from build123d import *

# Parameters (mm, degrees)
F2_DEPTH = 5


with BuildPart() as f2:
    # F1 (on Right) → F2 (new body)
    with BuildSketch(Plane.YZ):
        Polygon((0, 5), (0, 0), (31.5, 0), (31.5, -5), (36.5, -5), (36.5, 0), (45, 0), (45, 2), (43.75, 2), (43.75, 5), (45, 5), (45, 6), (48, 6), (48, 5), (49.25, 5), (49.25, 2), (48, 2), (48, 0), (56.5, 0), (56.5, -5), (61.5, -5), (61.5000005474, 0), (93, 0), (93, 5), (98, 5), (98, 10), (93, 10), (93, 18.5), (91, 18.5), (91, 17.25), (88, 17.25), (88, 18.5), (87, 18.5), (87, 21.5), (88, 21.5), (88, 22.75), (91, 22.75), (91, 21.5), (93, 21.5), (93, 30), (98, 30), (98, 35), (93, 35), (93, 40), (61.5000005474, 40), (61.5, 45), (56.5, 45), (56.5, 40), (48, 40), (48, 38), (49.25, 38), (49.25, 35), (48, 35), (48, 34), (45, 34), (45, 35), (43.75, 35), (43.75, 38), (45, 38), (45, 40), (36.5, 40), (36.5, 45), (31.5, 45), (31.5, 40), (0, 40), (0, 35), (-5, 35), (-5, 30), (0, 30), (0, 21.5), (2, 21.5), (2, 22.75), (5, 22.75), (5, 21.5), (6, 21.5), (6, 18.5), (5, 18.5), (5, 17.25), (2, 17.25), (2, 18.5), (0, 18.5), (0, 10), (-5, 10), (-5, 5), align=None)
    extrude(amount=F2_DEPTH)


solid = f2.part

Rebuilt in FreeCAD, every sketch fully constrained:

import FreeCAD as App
import Part
import Sketcher

doc = App.newDocument("Part")
body = doc.addObject("PartDesign::Body", "Body")

sketch1 = body.newObject("Sketcher::SketchObject", "Sketch")
sketch1.AttachmentSupport = (doc.getObject("YZ_Plane"), [""])
sketch1.MapMode = "FlatFace"
sketch1.addGeometry(Part.LineSegment(App.Vector(0, 5, 0), App.Vector(0, 0, 0)), False)
sketch1.addGeometry(Part.LineSegment(App.Vector(0, 0, 0), App.Vector(31.5, 0, 0)), False)
sketch1.addGeometry(Part.LineSegment(App.Vector(31.5, 0, 0), App.Vector(31.5, -5, 0)), False)
sketch1.addGeometry(Part.LineSegment(App.Vector(31.5, -5, 0), App.Vector(36.5, -5, 0)), False)
sketch1.addGeometry(Part.LineSegment(App.Vector(36.5, -5, 0), App.Vector(36.5, 0, 0)), False)
sketch1.addGeometry(Part.LineSegment(App.Vector(36.5, 0, 0), App.Vector(45, 0, 0)), False)
sketch1.addGeometry(Part.LineSegment(App.Vector(45, 0, 0), App.Vector(45, 2, 0)), False)
sketch1.addGeometry(Part.LineSegment(App.Vector(45, 2, 0), App.Vector(43.75, 2, 0)), False)
sketch1.addGeometry(Part.LineSegment(App.Vector(43.75, 2, 0), App.Vector(43.75, 5, 0)), False)
sketch1.addGeometry(Part.LineSegment(App.Vector(43.75, 5, 0), App.Vector(45, 5, 0)), False)
sketch1.addGeometry(Part.LineSegment(App.Vector(45, 5, 0), App.Vector(45, 6, 0)), False)
sketch1.addGeometry(Part.LineSegment(App.Vector(45, 6, 0), App.Vector(48, 6, 0)), False)
sketch1.addGeometry(Part.LineSegment(App.Vector(48, 6, 0), App.Vector(48, 5, 0)), False)
sketch1.addGeometry(Part.LineSegment(App.Vector(48, 5, 0), App.Vector(49.25, 5, 0)), False)
sketch1.addGeometry(Part.LineSegment(App.Vector(49.25, 5, 0), App.Vector(49.25, 2, 0)), False)
sketch1.addGeometry(Part.LineSegment(App.Vector(49.25, 2, 0), App.Vector(48, 2, 0)), False)
sketch1.addGeometry(Part.LineSegment(App.Vector(48, 2, 0), App.Vector(48, 0, 0)), False)
sketch1.addGeometry(Part.LineSegment(App.Vector(48, 0, 0), App.Vector(56.5, 0, 0)), False)
sketch1.addGeometry(Part.LineSegment(App.Vector(56.5, 0, 0), App.Vector(56.5, -5, 0)), False)
sketch1.addGeometry(Part.LineSegment(App.Vector(56.5, -5, 0), App.Vector(61.5, -5, 0)), False)
sketch1.addGeometry(Part.LineSegment(App.Vector(61.5, -5, 0), App.Vector(61.500001, 0, 0)), False)
sketch1.addGeometry(Part.LineSegment(App.Vector(61.500001, 0, 0), App.Vector(93, 0, 0)), False)
sketch1.addGeometry(Part.LineSegment(App.Vector(93, 0, 0), App.Vector(93, 5, 0)), False)
sketch1.addGeometry(Part.LineSegment(App.Vector(93, 5, 0), App.Vector(98, 5, 0)), False)
sketch1.addGeometry(Part.LineSegment(App.Vector(98, 5, 0), App.Vector(98, 10, 0)), False)
sketch1.addGeometry(Part.LineSegment(App.Vector(98, 10, 0), App.Vector(93, 10, 0)), False)
sketch1.addGeometry(Part.LineSegment(App.Vector(93, 10, 0), App.Vector(93, 18.5, 0)), False)
sketch1.addGeometry(Part.LineSegment(App.Vector(93, 18.5, 0), App.Vector(91, 18.5, 0)), False)
sketch1.addGeometry(Part.LineSegment(App.Vector(91, 18.5, 0), App.Vector(91, 17.25, 0)), False)
sketch1.addGeometry(Part.LineSegment(App.Vector(91, 17.25, 0), App.Vector(88, 17.25, 0)), False)
sketch1.addGeometry(Part.LineSegment(App.Vector(88, 17.25, 0), App.Vector(88, 18.5, 0)), False)
sketch1.addGeometry(Part.LineSegment(App.Vector(88, 18.5, 0), App.Vector(87, 18.5, 0)), False)
sketch1.addGeometry(Part.LineSegment(App.Vector(87, 18.5, 0), App.Vector(87, 21.5, 0)), False)
sketch1.addGeometry(Part.LineSegment(App.Vector(87, 21.5, 0), App.Vector(88, 21.5, 0)), False)
sketch1.addGeometry(Part.LineSegment(App.Vector(88, 21.5, 0), App.Vector(88, 22.75, 0)), False)
sketch1.addGeometry(Part.LineSegment(App.Vector(88, 22.75, 0), App.Vector(91, 22.75, 0)), False)
sketch1.addGeometry(Part.LineSegment(App.Vector(91, 22.75, 0), App.Vector(91, 21.5, 0)), False)
sketch1.addGeometry(Part.LineSegment(App.Vector(91, 21.5, 0), App.Vector(93, 21.5, 0)), False)
sketch1.addGeometry(Part.LineSegment(App.Vector(93, 21.5, 0), App.Vector(93, 30, 0)), False)
sketch1.addGeometry(Part.LineSegment(App.Vector(93, 30, 0), App.Vector(98, 30, 0)), False)
sketch1.addGeometry(Part.LineSegment(App.Vector(98, 30, 0), App.Vector(98, 35, 0)), False)
sketch1.addGeometry(Part.LineSegment(App.Vector(98, 35, 0), App.Vector(93, 35, 0)), False)
sketch1.addGeometry(Part.LineSegment(App.Vector(93, 35, 0), App.Vector(93, 40, 0)), False)
sketch1.addGeometry(Part.LineSegment(App.Vector(93, 40, 0), App.Vector(61.500001, 40, 0)), False)
sketch1.addGeometry(Part.LineSegment(App.Vector(61.500001, 40, 0), App.Vector(61.5, 45, 0)), False)
sketch1.addGeometry(Part.LineSegment(App.Vector(61.5, 45, 0), App.Vector(56.5, 45, 0)), False)
sketch1.addGeometry(Part.LineSegment(App.Vector(56.5, 45, 0), App.Vector(56.5, 40, 0)), False)
sketch1.addGeometry(Part.LineSegment(App.Vector(56.5, 40, 0), App.Vector(48, 40, 0)), False)
sketch1.addGeometry(Part.LineSegment(App.Vector(48, 40, 0), App.Vector(48, 38, 0)), False)
sketch1.addGeometry(Part.LineSegment(App.Vector(48, 38, 0), App.Vector(49.25, 38, 0)), False)
sketch1.addGeometry(Part.LineSegment(App.Vector(49.25, 38, 0), App.Vector(49.25, 35, 0)), False)
sketch1.addGeometry(Part.LineSegment(App.Vector(49.25, 35, 0), App.Vector(48, 35, 0)), False)
sketch1.addGeometry(Part.LineSegment(App.Vector(48, 35, 0), App.Vector(48, 34, 0)), False)
sketch1.addGeometry(Part.LineSegment(App.Vector(48, 34, 0), App.Vector(45, 34, 0)), False)
sketch1.addGeometry(Part.LineSegment(App.Vector(45, 34, 0), App.Vector(45, 35, 0)), False)
sketch1.addGeometry(Part.LineSegment(App.Vector(45, 35, 0), App.Vector(43.75, 35, 0)), False)
sketch1.addGeometry(Part.LineSegment(App.Vector(43.75, 35, 0), App.Vector(43.75, 38, 0)), False)
sketch1.addGeometry(Part.LineSegment(App.Vector(43.75, 38, 0), App.Vector(45, 38, 0)), False)
sketch1.addGeometry(Part.LineSegment(App.Vector(45, 38, 0), App.Vector(45, 40, 0)), False)
sketch1.addGeometry(Part.LineSegment(App.Vector(45, 40, 0), App.Vector(36.5, 40, 0)), False)
sketch1.addGeometry(Part.LineSegment(App.Vector(36.5, 40, 0), App.Vector(36.5, 45, 0)), False)
sketch1.addGeometry(Part.LineSegment(App.Vector(36.5, 45, 0), App.Vector(31.5, 45, 0)), False)
sketch1.addGeometry(Part.LineSegment(App.Vector(31.5, 45, 0), App.Vector(31.5, 40, 0)), False)
sketch1.addGeometry(Part.LineSegment(App.Vector(31.5, 40, 0), App.Vector(0, 40, 0)), False)
sketch1.addGeometry(Part.LineSegment(App.Vector(0, 40, 0), App.Vector(0, 35, 0)), False)
sketch1.addGeometry(Part.LineSegment(App.Vector(0, 35, 0), App.Vector(-5, 35, 0)), False)
sketch1.addGeometry(Part.LineSegment(App.Vector(-5, 35, 0), App.Vector(-5, 30, 0)), False)
sketch1.addGeometry(Part.LineSegment(App.Vector(-5, 30, 0), App.Vector(0, 30, 0)), False)
sketch1.addGeometry(Part.LineSegment(App.Vector(0, 30, 0), App.Vector(0, 21.5, 0)), False)
sketch1.addGeometry(Part.LineSegment(App.Vector(0, 21.5, 0), App.Vector(2, 21.5, 0)), False)
sketch1.addGeometry(Part.LineSegment(App.Vector(2, 21.5, 0), App.Vector(2, 22.75, 0)), False)
sketch1.addGeometry(Part.LineSegment(App.Vector(2, 22.75, 0), App.Vector(5, 22.75, 0)), False)
sketch1.addGeometry(Part.LineSegment(App.Vector(5, 22.75, 0), App.Vector(5, 21.5, 0)), False)
sketch1.addGeometry(Part.LineSegment(App.Vector(5, 21.5, 0), App.Vector(6, 21.5, 0)), False)
sketch1.addGeometry(Part.LineSegment(App.Vector(6, 21.5, 0), App.Vector(6, 18.5, 0)), False)
sketch1.addGeometry(Part.LineSegment(App.Vector(6, 18.5, 0), App.Vector(5, 18.5, 0)), False)
sketch1.addGeometry(Part.LineSegment(App.Vector(5, 18.5, 0), App.Vector(5, 17.25, 0)), False)
sketch1.addGeometry(Part.LineSegment(App.Vector(5, 17.25, 0), App.Vector(2, 17.25, 0)), False)
sketch1.addGeometry(Part.LineSegment(App.Vector(2, 17.25, 0), App.Vector(2, 18.5, 0)), False)
sketch1.addGeometry(Part.LineSegment(App.Vector(2, 18.5, 0), App.Vector(0, 18.5, 0)), False)
sketch1.addGeometry(Part.LineSegment(App.Vector(0, 18.5, 0), App.Vector(0, 10, 0)), False)
sketch1.addGeometry(Part.LineSegment(App.Vector(0, 10, 0), App.Vector(-5, 10, 0)), False)
sketch1.addGeometry(Part.LineSegment(App.Vector(-5, 10, 0), App.Vector(-5, 5, 0)), False)
sketch1.addGeometry(Part.LineSegment(App.Vector(-5, 5, 0), App.Vector(0, 5, 0)), False)
sketch1.addConstraint(Sketcher.Constraint("Coincident", 0, 2, 1, 1))
sketch1.addConstraint(Sketcher.Constraint("Coincident", 1, 2, 2, 1))
sketch1.addConstraint(Sketcher.Constraint("Coincident", 2, 2, 3, 1))
sketch1.addConstraint(Sketcher.Constraint("Coincident", 3, 2, 4, 1))
sketch1.addConstraint(Sketcher.Constraint("Coincident", 4, 2, 5, 1))
sketch1.addConstraint(Sketcher.Constraint("Coincident", 5, 2, 6, 1))
sketch1.addConstraint(Sketcher.Constraint("Coincident", 6, 2, 7, 1))
sketch1.addConstraint(Sketcher.Constraint("Coincident", 7, 2, 8, 1))
sketch1.addConstraint(Sketcher.Constraint("Coincident", 8, 2, 9, 1))
sketch1.addConstraint(Sketcher.Constraint("Coincident", 9, 2, 10, 1))
sketch1.addConstraint(Sketcher.Constraint("Coincident", 10, 2, 11, 1))
sketch1.addConstraint(Sketcher.Constraint("Coincident", 11, 2, 12, 1))
sketch1.addConstraint(Sketcher.Constraint("Coincident", 12, 2, 13, 1))
sketch1.addConstraint(Sketcher.Constraint("Coincident", 13, 2, 14, 1))
sketch1.addConstraint(Sketcher.Constraint("Coincident", 14, 2, 15, 1))
sketch1.addConstraint(Sketcher.Constraint("Coincident", 15, 2, 16, 1))
sketch1.addConstraint(Sketcher.Constraint("Coincident", 16, 2, 17, 1))
sketch1.addConstraint(Sketcher.Constraint("Coincident", 17, 2, 18, 1))
sketch1.addConstraint(Sketcher.Constraint("Coincident", 18, 2, 19, 1))
sketch1.addConstraint(Sketcher.Constraint("Coincident", 19, 2, 20, 1))
sketch1.addConstraint(Sketcher.Constraint("Coincident", 20, 2, 21, 1))
sketch1.addConstraint(Sketcher.Constraint("Coincident", 21, 2, 22, 1))
sketch1.addConstraint(Sketcher.Constraint("Coincident", 22, 2, 23, 1))
sketch1.addConstraint(Sketcher.Constraint("Coincident", 23, 2, 24, 1))
sketch1.addConstraint(Sketcher.Constraint("Coincident", 24, 2, 25, 1))
sketch1.addConstraint(Sketcher.Constraint("Coincident", 25, 2, 26, 1))
sketch1.addConstraint(Sketcher.Constraint("Coincident", 26, 2, 27, 1))
sketch1.addConstraint(Sketcher.Constraint("Coincident", 27, 2, 28, 1))
sketch1.addConstraint(Sketcher.Constraint("Coincident", 28, 2, 29, 1))
sketch1.addConstraint(Sketcher.Constraint("Coincident", 29, 2, 30, 1))
sketch1.addConstraint(Sketcher.Constraint("Coincident", 30, 2, 31, 1))
sketch1.addConstraint(Sketcher.Constraint("Coincident", 31, 2, 32, 1))
sketch1.addConstraint(Sketcher.Constraint("Coincident", 32, 2, 33, 1))
sketch1.addConstraint(Sketcher.Constraint("Coincident", 33, 2, 34, 1))
sketch1.addConstraint(Sketcher.Constraint("Coincident", 34, 2, 35, 1))
sketch1.addConstraint(Sketcher.Constraint("Coincident", 35, 2, 36, 1))
sketch1.addConstraint(Sketcher.Constraint("Coincident", 36, 2, 37, 1))
sketch1.addConstraint(Sketcher.Constraint("Coincident", 37, 2, 38, 1))
sketch1.addConstraint(Sketcher.Constraint("Coincident", 38, 2, 39, 1))
sketch1.addConstraint(Sketcher.Constraint("Coincident", 39, 2, 40, 1))
sketch1.addConstraint(Sketcher.Constraint("Coincident", 40, 2, 41, 1))
sketch1.addConstraint(Sketcher.Constraint("Coincident", 41, 2, 42, 1))
sketch1.addConstraint(Sketcher.Constraint("Coincident", 42, 2, 43, 1))
sketch1.addConstraint(Sketcher.Constraint("Coincident", 43, 2, 44, 1))
sketch1.addConstraint(Sketcher.Constraint("Coincident", 44, 2, 45, 1))
sketch1.addConstraint(Sketcher.Constraint("Coincident", 45, 2, 46, 1))
sketch1.addConstraint(Sketcher.Constraint("Coincident", 46, 2, 47, 1))
sketch1.addConstraint(Sketcher.Constraint("Coincident", 47, 2, 48, 1))
sketch1.addConstraint(Sketcher.Constraint("Coincident", 48, 2, 49, 1))
sketch1.addConstraint(Sketcher.Constraint("Coincident", 49, 2, 50, 1))
sketch1.addConstraint(Sketcher.Constraint("Coincident", 50, 2, 51, 1))
sketch1.addConstraint(Sketcher.Constraint("Coincident", 51, 2, 52, 1))
sketch1.addConstraint(Sketcher.Constraint("Coincident", 52, 2, 53, 1))
sketch1.addConstraint(Sketcher.Constraint("Coincident", 53, 2, 54, 1))
sketch1.addConstraint(Sketcher.Constraint("Coincident", 54, 2, 55, 1))
sketch1.addConstraint(Sketcher.Constraint("Coincident", 55, 2, 56, 1))
sketch1.addConstraint(Sketcher.Constraint("Coincident", 56, 2, 57, 1))
sketch1.addConstraint(Sketcher.Constraint("Coincident", 57, 2, 58, 1))
sketch1.addConstraint(Sketcher.Constraint("Coincident", 58, 2, 59, 1))
sketch1.addConstraint(Sketcher.Constraint("Coincident", 59, 2, 60, 1))
sketch1.addConstraint(Sketcher.Constraint("Coincident", 60, 2, 61, 1))
sketch1.addConstraint(Sketcher.Constraint("Coincident", 61, 2, 62, 1))
sketch1.addConstraint(Sketcher.Constraint("Coincident", 62, 2, 63, 1))
sketch1.addConstraint(Sketcher.Constraint("Coincident", 63, 2, 64, 1))
sketch1.addConstraint(Sketcher.Constraint("Coincident", 64, 2, 65, 1))
sketch1.addConstraint(Sketcher.Constraint("Coincident", 65, 2, 66, 1))
sketch1.addConstraint(Sketcher.Constraint("Coincident", 66, 2, 67, 1))
sketch1.addConstraint(Sketcher.Constraint("Coincident", 67, 2, 68, 1))
sketch1.addConstraint(Sketcher.Constraint("Coincident", 68, 2, 69, 1))
sketch1.addConstraint(Sketcher.Constraint("Coincident", 69, 2, 70, 1))
sketch1.addConstraint(Sketcher.Constraint("Coincident", 70, 2, 71, 1))
sketch1.addConstraint(Sketcher.Constraint("Coincident", 71, 2, 72, 1))
sketch1.addConstraint(Sketcher.Constraint("Coincident", 72, 2, 73, 1))
sketch1.addConstraint(Sketcher.Constraint("Coincident", 73, 2, 74, 1))
sketch1.addConstraint(Sketcher.Constraint("Coincident", 74, 2, 75, 1))
sketch1.addConstraint(Sketcher.Constraint("Coincident", 75, 2, 76, 1))
sketch1.addConstraint(Sketcher.Constraint("Coincident", 76, 2, 77, 1))
sketch1.addConstraint(Sketcher.Constraint("Coincident", 77, 2, 78, 1))
sketch1.addConstraint(Sketcher.Constraint("Coincident", 78, 2, 79, 1))
sketch1.addConstraint(Sketcher.Constraint("Coincident", 79, 2, 80, 1))
sketch1.addConstraint(Sketcher.Constraint("Coincident", 80, 2, 81, 1))
sketch1.addConstraint(Sketcher.Constraint("Coincident", 81, 2, 82, 1))
sketch1.addConstraint(Sketcher.Constraint("Coincident", 82, 2, 83, 1))
sketch1.addConstraint(Sketcher.Constraint("Coincident", 83, 2, 0, 1))
sketch1.addConstraint(Sketcher.Constraint("Vertical", 0))
sketch1.addConstraint(Sketcher.Constraint("Horizontal", 1))
sketch1.addConstraint(Sketcher.Constraint("Vertical", 2))
sketch1.addConstraint(Sketcher.Constraint("Horizontal", 3))
sketch1.addConstraint(Sketcher.Constraint("Vertical", 4))
sketch1.addConstraint(Sketcher.Constraint("Horizontal", 5))
sketch1.addConstraint(Sketcher.Constraint("Vertical", 6))
sketch1.addConstraint(Sketcher.Constraint("Horizontal", 7))
sketch1.addConstraint(Sketcher.Constraint("Vertical", 8))
sketch1.addConstraint(Sketcher.Constraint("Horizontal", 9))
sketch1.addConstraint(Sketcher.Constraint("Vertical", 10))
sketch1.addConstraint(Sketcher.Constraint("Horizontal", 11))
sketch1.addConstraint(Sketcher.Constraint("Vertical", 12))
sketch1.addConstraint(Sketcher.Constraint("Horizontal", 13))
sketch1.addConstraint(Sketcher.Constraint("Vertical", 14))
sketch1.addConstraint(Sketcher.Constraint("Horizontal", 15))
sketch1.addConstraint(Sketcher.Constraint("Vertical", 16))
sketch1.addConstraint(Sketcher.Constraint("Horizontal", 17))
sketch1.addConstraint(Sketcher.Constraint("Vertical", 18))
sketch1.addConstraint(Sketcher.Constraint("Horizontal", 19))
sketch1.addConstraint(Sketcher.Constraint("Vertical", 20))
sketch1.addConstraint(Sketcher.Constraint("Horizontal", 21))
sketch1.addConstraint(Sketcher.Constraint("Vertical", 22))
sketch1.addConstraint(Sketcher.Constraint("Horizontal", 23))
sketch1.addConstraint(Sketcher.Constraint("Vertical", 24))
sketch1.addConstraint(Sketcher.Constraint("Horizontal", 25))
sketch1.addConstraint(Sketcher.Constraint("Vertical", 26))
sketch1.addConstraint(Sketcher.Constraint("Horizontal", 27))
sketch1.addConstraint(Sketcher.Constraint("Vertical", 28))
sketch1.addConstraint(Sketcher.Constraint("Horizontal", 29))
sketch1.addConstraint(Sketcher.Constraint("Vertical", 30))
sketch1.addConstraint(Sketcher.Constraint("Horizontal", 31))
sketch1.addConstraint(Sketcher.Constraint("Vertical", 32))
sketch1.addConstraint(Sketcher.Constraint("Horizontal", 33))
sketch1.addConstraint(Sketcher.Constraint("Vertical", 34))
sketch1.addConstraint(Sketcher.Constraint("Horizontal", 35))
sketch1.addConstraint(Sketcher.Constraint("Vertical", 36))
sketch1.addConstraint(Sketcher.Constraint("Horizontal", 37))
sketch1.addConstraint(Sketcher.Constraint("Vertical", 38))
sketch1.addConstraint(Sketcher.Constraint("Horizontal", 39))
sketch1.addConstraint(Sketcher.Constraint("Vertical", 40))
sketch1.addConstraint(Sketcher.Constraint("Horizontal", 41))
sketch1.addConstraint(Sketcher.Constraint("Vertical", 42))
sketch1.addConstraint(Sketcher.Constraint("Horizontal", 43))
sketch1.addConstraint(Sketcher.Constraint("Vertical", 44))
sketch1.addConstraint(Sketcher.Constraint("Horizontal", 45))
sketch1.addConstraint(Sketcher.Constraint("Vertical", 46))
sketch1.addConstraint(Sketcher.Constraint("Horizontal", 47))
sketch1.addConstraint(Sketcher.Constraint("Vertical", 48))
sketch1.addConstraint(Sketcher.Constraint("Horizontal", 49))
sketch1.addConstraint(Sketcher.Constraint("Vertical", 50))
sketch1.addConstraint(Sketcher.Constraint("Horizontal", 51))
sketch1.addConstraint(Sketcher.Constraint("Vertical", 52))
sketch1.addConstraint(Sketcher.Constraint("Horizontal", 53))
sketch1.addConstraint(Sketcher.Constraint("Vertical", 54))
sketch1.addConstraint(Sketcher.Constraint("Horizontal", 55))
sketch1.addConstraint(Sketcher.Constraint("Vertical", 56))
sketch1.addConstraint(Sketcher.Constraint("Horizontal", 57))
sketch1.addConstraint(Sketcher.Constraint("Vertical", 58))
sketch1.addConstraint(Sketcher.Constraint("Horizontal", 59))
sketch1.addConstraint(Sketcher.Constraint("Vertical", 60))
sketch1.addConstraint(Sketcher.Constraint("Horizontal", 61))
sketch1.addConstraint(Sketcher.Constraint("Vertical", 62))
sketch1.addConstraint(Sketcher.Constraint("Horizontal", 63))
sketch1.addConstraint(Sketcher.Constraint("Vertical", 64))
sketch1.addConstraint(Sketcher.Constraint("Horizontal", 65))
sketch1.addConstraint(Sketcher.Constraint("Vertical", 66))
sketch1.addConstraint(Sketcher.Constraint("Horizontal", 67))
sketch1.addConstraint(Sketcher.Constraint("Vertical", 68))
sketch1.addConstraint(Sketcher.Constraint("Horizontal", 69))
sketch1.addConstraint(Sketcher.Constraint("Vertical", 70))
sketch1.addConstraint(Sketcher.Constraint("Horizontal", 71))
sketch1.addConstraint(Sketcher.Constraint("Vertical", 72))
sketch1.addConstraint(Sketcher.Constraint("Horizontal", 73))
sketch1.addConstraint(Sketcher.Constraint("Vertical", 74))
sketch1.addConstraint(Sketcher.Constraint("Horizontal", 75))
sketch1.addConstraint(Sketcher.Constraint("Vertical", 76))
sketch1.addConstraint(Sketcher.Constraint("Horizontal", 77))
sketch1.addConstraint(Sketcher.Constraint("Vertical", 78))
sketch1.addConstraint(Sketcher.Constraint("Horizontal", 79))
sketch1.addConstraint(Sketcher.Constraint("Vertical", 80))
sketch1.addConstraint(Sketcher.Constraint("Horizontal", 81))
sketch1.addConstraint(Sketcher.Constraint("Vertical", 82))
sketch1.addConstraint(Sketcher.Constraint("Horizontal", 83))
sketch1.addConstraint(Sketcher.Constraint("Coincident", 0, 2, -1, 1))
sketch1.addConstraint(Sketcher.Constraint("PointOnObject", 4, 2, -1))
sketch1.addConstraint(Sketcher.Constraint("PointOnObject", 16, 2, -1))
sketch1.addConstraint(Sketcher.Constraint("PointOnObject", 20, 2, -1))
sketch1.addConstraint(Sketcher.Constraint("PointOnObject", 63, 2, -2))
sketch1.addConstraint(Sketcher.Constraint("PointOnObject", 67, 2, -2))
sketch1.addConstraint(Sketcher.Constraint("PointOnObject", 79, 2, -2))
sketch1.addConstraint(Sketcher.Constraint("Horizontal", 9, 2, 12, 2))
sketch1.addConstraint(Sketcher.Constraint("Horizontal", 7, 2, 14, 2))
sketch1.addConstraint(Sketcher.Constraint("Horizontal", 3, 2, 18, 2))
sketch1.addConstraint(Sketcher.Constraint("Horizontal", 13, 2, 22, 2))
sketch1.addConstraint(Sketcher.Constraint("Horizontal", 27, 2, 30, 2))
sketch1.addConstraint(Sketcher.Constraint("Horizontal", 33, 2, 36, 2))
sketch1.addConstraint(Sketcher.Constraint("Horizontal", 43, 2, 46, 2))
sketch1.addConstraint(Sketcher.Constraint("Horizontal", 41, 2, 50, 2))
sketch1.addConstraint(Sketcher.Constraint("Horizontal", 51, 2, 54, 2))
sketch1.addConstraint(Sketcher.Constraint("Horizontal", 49, 2, 56, 2))
sketch1.addConstraint(Sketcher.Constraint("Horizontal", 47, 2, 58, 2))
sketch1.addConstraint(Sketcher.Constraint("Horizontal", 45, 2, 60, 2))
sketch1.addConstraint(Sketcher.Constraint("Horizontal", 59, 2, 62, 2))
sketch1.addConstraint(Sketcher.Constraint("Horizontal", 55, 2, 64, 2))
sketch1.addConstraint(Sketcher.Constraint("Horizontal", 39, 2, 66, 2))
sketch1.addConstraint(Sketcher.Constraint("Horizontal", 37, 2, 68, 2))
sketch1.addConstraint(Sketcher.Constraint("Horizontal", 35, 2, 70, 2))
sketch1.addConstraint(Sketcher.Constraint("Horizontal", 69, 2, 72, 2))
sketch1.addConstraint(Sketcher.Constraint("Horizontal", 31, 2, 74, 2))
sketch1.addConstraint(Sketcher.Constraint("Horizontal", 29, 2, 76, 2))
sketch1.addConstraint(Sketcher.Constraint("Horizontal", 75, 2, 78, 2))
sketch1.addConstraint(Sketcher.Constraint("Horizontal", 25, 2, 80, 2))
sketch1.addConstraint(Sketcher.Constraint("Horizontal", 23, 2, 82, 2))
sketch1.addConstraint(Sketcher.Constraint("Vertical", 6, 2, 9, 2))
sketch1.addConstraint(Sketcher.Constraint("Vertical", 12, 2, 15, 2))
sketch1.addConstraint(Sketcher.Constraint("Vertical", 22, 2, 25, 2))
sketch1.addConstraint(Sketcher.Constraint("Vertical", 30, 2, 33, 2))
sketch1.addConstraint(Sketcher.Constraint("Vertical", 28, 2, 35, 2))
sketch1.addConstraint(Sketcher.Constraint("Vertical", 26, 2, 37, 2))
sketch1.addConstraint(Sketcher.Constraint("Vertical", 24, 2, 39, 2))
sketch1.addConstraint(Sketcher.Constraint("Vertical", 38, 2, 41, 2))
sketch1.addConstraint(Sketcher.Constraint("Vertical", 20, 2, 43, 2))
sketch1.addConstraint(Sketcher.Constraint("Vertical", 18, 2, 45, 2))
sketch1.addConstraint(Sketcher.Constraint("Vertical", 16, 2, 47, 2))
sketch1.addConstraint(Sketcher.Constraint("Vertical", 14, 2, 49, 2))
sketch1.addConstraint(Sketcher.Constraint("Vertical", 48, 2, 51, 2))
sketch1.addConstraint(Sketcher.Constraint("Vertical", 10, 2, 53, 2))
sketch1.addConstraint(Sketcher.Constraint("Vertical", 8, 2, 55, 2))
sketch1.addConstraint(Sketcher.Constraint("Vertical", 54, 2, 57, 2))
sketch1.addConstraint(Sketcher.Constraint("Vertical", 4, 2, 59, 2))
sketch1.addConstraint(Sketcher.Constraint("Vertical", 2, 2, 61, 2))
sketch1.addConstraint(Sketcher.Constraint("Vertical", 72, 2, 75, 2))
sketch1.addConstraint(Sketcher.Constraint("Vertical", 70, 2, 77, 2))
sketch1.addConstraint(Sketcher.Constraint("Vertical", 66, 2, 81, 2))
sketch1.addConstraint(Sketcher.Constraint("Equal", 9, 13))
sketch1.addConstraint(Sketcher.Constraint("Equal", 5, 17))
sketch1.addConstraint(Sketcher.Constraint("Equal", 3, 19))
sketch1.addConstraint(Sketcher.Constraint("Equal", 1, 21))
sketch1.addConstraint(Sketcher.Constraint("Equal", 19, 23))
sketch1.addConstraint(Sketcher.Constraint("Equal", 11, 29))
sketch1.addConstraint(Sketcher.Constraint("Equal", 61, 65))
sketch1.addConstraint(Sketcher.Constraint("Equal", 37, 69))
sketch1.addConstraint(Sketcher.Constraint("Equal", 53, 71))
sketch1.addConstraint(Sketcher.Constraint("Equal", 33, 73))
sketch1.addConstraint(Sketcher.Constraint("Equal", 83, 0))
sketch1.addConstraint(Sketcher.Constraint("Equal", 0, 2))
sketch1.addConstraint(Sketcher.Constraint("Equal", 79, 6))
sketch1.addConstraint(Sketcher.Constraint("Equal", 77, 8))
sketch1.addConstraint(Sketcher.Constraint("Equal", 75, 10))
sketch1.addConstraint(Sketcher.Constraint("Equal", 22, 24))
sketch1.addConstraint(Sketcher.Constraint("Equal", 59, 26))
sketch1.addConstraint(Sketcher.Constraint("Equal", 57, 28))
sketch1.addConstraint(Sketcher.Constraint("Equal", 14, 32))
sketch1.addConstraint(Sketcher.Constraint("Equal", 30, 34))
sketch1.addConstraint(Sketcher.Constraint("Equal", 26, 38))
sketch1.addConstraint(Sketcher.Constraint("Equal", 24, 40))
sketch1.addConstraint(Sketcher.Constraint("Equal", 40, 42))
sketch1.addConstraint(Sketcher.Constraint("Equal", 42, 44))
sketch1.addConstraint(Sketcher.Constraint("Equal", 16, 48))
sketch1.addConstraint(Sketcher.Constraint("Equal", 12, 52))
sketch1.addConstraint(Sketcher.Constraint("DistanceX", 3, 1, 3, 2, 5.0))
sketch1.addConstraint(Sketcher.Constraint("DistanceX", 11, 1, 11, 2, 3.0))
sketch1.addConstraint(Sketcher.Constraint("DistanceX", 31, 2, 31, 1, 1.0))
sketch1.addConstraint(Sketcher.Constraint("DistanceX", 1, 1, 1, 2, 31.5))
sketch1.addConstraint(Sketcher.Constraint("DistanceX", 5, 1, 5, 2, 8.5))
sketch1.addConstraint(Sketcher.Constraint("DistanceX", 7, 2, 7, 1, 1.25))
pad1 = body.newObject("PartDesign::Pad", "Pad")
pad1.Profile = sketch1
pad1.Length = 5

doc.recompute()
